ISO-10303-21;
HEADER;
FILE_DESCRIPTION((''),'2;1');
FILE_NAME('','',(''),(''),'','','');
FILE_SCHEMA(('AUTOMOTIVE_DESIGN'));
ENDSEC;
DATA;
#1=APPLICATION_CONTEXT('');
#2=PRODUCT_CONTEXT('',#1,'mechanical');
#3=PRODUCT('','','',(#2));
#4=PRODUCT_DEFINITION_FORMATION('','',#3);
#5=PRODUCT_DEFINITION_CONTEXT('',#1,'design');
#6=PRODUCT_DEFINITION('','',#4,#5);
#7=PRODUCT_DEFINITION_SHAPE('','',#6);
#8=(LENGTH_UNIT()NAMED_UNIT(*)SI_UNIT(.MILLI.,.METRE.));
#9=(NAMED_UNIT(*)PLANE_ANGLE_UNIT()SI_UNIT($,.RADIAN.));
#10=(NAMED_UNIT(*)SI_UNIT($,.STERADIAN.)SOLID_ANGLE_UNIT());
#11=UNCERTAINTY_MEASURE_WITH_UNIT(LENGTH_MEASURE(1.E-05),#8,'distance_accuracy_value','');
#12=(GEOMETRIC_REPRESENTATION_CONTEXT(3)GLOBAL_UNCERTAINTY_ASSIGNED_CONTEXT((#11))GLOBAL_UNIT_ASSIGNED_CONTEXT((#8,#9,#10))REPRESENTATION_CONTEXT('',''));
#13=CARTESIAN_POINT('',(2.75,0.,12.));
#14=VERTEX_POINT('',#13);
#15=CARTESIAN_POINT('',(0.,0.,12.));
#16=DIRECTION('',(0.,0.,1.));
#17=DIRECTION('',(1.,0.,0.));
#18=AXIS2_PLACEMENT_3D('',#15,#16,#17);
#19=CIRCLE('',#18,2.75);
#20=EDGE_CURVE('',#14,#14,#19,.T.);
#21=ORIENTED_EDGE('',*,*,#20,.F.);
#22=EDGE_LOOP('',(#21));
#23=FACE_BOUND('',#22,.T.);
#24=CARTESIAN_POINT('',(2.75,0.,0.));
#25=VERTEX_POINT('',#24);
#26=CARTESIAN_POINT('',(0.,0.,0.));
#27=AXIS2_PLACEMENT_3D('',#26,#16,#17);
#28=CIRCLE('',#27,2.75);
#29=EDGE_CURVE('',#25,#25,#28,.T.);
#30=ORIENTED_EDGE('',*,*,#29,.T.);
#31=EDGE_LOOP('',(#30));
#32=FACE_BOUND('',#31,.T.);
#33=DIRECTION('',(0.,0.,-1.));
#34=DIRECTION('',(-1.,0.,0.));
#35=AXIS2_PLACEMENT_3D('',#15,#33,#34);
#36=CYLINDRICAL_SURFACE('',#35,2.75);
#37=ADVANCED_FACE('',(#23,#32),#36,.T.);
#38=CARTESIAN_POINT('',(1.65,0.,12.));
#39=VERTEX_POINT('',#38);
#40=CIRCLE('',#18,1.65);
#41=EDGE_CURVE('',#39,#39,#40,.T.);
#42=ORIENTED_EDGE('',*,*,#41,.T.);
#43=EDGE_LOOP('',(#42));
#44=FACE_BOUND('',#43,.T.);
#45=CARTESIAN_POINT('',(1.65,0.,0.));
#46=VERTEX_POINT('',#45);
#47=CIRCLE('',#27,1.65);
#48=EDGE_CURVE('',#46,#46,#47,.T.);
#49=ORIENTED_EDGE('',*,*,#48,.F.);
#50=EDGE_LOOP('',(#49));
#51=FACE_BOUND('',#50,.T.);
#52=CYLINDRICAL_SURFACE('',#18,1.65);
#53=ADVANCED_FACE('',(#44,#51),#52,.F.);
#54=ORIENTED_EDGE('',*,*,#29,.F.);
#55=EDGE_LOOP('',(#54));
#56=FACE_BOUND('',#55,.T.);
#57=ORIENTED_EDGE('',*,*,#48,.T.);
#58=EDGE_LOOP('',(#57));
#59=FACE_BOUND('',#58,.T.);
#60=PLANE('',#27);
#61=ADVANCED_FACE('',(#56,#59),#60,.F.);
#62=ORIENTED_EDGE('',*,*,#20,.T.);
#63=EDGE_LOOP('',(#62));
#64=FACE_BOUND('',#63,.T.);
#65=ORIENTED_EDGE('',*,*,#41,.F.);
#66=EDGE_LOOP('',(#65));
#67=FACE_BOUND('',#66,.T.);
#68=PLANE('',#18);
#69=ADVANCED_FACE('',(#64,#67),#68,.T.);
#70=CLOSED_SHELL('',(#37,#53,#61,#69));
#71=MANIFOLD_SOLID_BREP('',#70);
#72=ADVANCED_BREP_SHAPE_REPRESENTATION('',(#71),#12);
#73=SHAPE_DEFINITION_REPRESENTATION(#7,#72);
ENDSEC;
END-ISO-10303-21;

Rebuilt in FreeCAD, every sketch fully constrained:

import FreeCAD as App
import Part
import Sketcher

V = App.Vector

doc = App.newDocument("Part")
body = doc.addObject("PartDesign::Body", "Body")

# Sketch on XY plane
sketch1 = body.newObject("Sketcher::SketchObject", "Sketch")
sketch1.AttachmentSupport = (doc.getObject("XY_Plane"), [""])
sketch1.MapMode = "FlatFace"
sketch1.addGeometry(Part.Circle(V(0, 0, 0), V(0, 0, 1), 2.8), False)
sketch1.addConstraint(Sketcher.Constraint("Coincident", 0, 3, -1, 1))
sketch1.addConstraint(Sketcher.Constraint("Diameter", 0, 5.5))
pad1 = body.newObject("PartDesign::Pad", "Pad")
pad1.Profile = sketch1
pad1.Length = 12

# Sketch on XY plane
sketch2 = body.newObject("Sketcher::SketchObject", "Sketch001")
sketch2.AttachmentSupport = (doc.getObject("XY_Plane"), [""])
sketch2.MapMode = "FlatFace"
sketch2.AttachmentOffset = App.Placement(V(0, 0, 12), App.Rotation())
sketch2.addGeometry(Part.Circle(V(0, 0, 0), V(0, 0, 1), 1.6), False)
sketch2.addConstraint(Sketcher.Constraint("Coincident", 0, 3, -1, 1))
sketch2.addConstraint(Sketcher.Constraint("Diameter", 0, 3.3))
doc.recompute()
hole = body.newObject("PartDesign::Hole", "Hole")
hole.Profile = sketch2
hole.ThreadType = "None"
hole.Diameter = 3.3
hole.DepthType = "ThroughAll"

doc.recompute()
